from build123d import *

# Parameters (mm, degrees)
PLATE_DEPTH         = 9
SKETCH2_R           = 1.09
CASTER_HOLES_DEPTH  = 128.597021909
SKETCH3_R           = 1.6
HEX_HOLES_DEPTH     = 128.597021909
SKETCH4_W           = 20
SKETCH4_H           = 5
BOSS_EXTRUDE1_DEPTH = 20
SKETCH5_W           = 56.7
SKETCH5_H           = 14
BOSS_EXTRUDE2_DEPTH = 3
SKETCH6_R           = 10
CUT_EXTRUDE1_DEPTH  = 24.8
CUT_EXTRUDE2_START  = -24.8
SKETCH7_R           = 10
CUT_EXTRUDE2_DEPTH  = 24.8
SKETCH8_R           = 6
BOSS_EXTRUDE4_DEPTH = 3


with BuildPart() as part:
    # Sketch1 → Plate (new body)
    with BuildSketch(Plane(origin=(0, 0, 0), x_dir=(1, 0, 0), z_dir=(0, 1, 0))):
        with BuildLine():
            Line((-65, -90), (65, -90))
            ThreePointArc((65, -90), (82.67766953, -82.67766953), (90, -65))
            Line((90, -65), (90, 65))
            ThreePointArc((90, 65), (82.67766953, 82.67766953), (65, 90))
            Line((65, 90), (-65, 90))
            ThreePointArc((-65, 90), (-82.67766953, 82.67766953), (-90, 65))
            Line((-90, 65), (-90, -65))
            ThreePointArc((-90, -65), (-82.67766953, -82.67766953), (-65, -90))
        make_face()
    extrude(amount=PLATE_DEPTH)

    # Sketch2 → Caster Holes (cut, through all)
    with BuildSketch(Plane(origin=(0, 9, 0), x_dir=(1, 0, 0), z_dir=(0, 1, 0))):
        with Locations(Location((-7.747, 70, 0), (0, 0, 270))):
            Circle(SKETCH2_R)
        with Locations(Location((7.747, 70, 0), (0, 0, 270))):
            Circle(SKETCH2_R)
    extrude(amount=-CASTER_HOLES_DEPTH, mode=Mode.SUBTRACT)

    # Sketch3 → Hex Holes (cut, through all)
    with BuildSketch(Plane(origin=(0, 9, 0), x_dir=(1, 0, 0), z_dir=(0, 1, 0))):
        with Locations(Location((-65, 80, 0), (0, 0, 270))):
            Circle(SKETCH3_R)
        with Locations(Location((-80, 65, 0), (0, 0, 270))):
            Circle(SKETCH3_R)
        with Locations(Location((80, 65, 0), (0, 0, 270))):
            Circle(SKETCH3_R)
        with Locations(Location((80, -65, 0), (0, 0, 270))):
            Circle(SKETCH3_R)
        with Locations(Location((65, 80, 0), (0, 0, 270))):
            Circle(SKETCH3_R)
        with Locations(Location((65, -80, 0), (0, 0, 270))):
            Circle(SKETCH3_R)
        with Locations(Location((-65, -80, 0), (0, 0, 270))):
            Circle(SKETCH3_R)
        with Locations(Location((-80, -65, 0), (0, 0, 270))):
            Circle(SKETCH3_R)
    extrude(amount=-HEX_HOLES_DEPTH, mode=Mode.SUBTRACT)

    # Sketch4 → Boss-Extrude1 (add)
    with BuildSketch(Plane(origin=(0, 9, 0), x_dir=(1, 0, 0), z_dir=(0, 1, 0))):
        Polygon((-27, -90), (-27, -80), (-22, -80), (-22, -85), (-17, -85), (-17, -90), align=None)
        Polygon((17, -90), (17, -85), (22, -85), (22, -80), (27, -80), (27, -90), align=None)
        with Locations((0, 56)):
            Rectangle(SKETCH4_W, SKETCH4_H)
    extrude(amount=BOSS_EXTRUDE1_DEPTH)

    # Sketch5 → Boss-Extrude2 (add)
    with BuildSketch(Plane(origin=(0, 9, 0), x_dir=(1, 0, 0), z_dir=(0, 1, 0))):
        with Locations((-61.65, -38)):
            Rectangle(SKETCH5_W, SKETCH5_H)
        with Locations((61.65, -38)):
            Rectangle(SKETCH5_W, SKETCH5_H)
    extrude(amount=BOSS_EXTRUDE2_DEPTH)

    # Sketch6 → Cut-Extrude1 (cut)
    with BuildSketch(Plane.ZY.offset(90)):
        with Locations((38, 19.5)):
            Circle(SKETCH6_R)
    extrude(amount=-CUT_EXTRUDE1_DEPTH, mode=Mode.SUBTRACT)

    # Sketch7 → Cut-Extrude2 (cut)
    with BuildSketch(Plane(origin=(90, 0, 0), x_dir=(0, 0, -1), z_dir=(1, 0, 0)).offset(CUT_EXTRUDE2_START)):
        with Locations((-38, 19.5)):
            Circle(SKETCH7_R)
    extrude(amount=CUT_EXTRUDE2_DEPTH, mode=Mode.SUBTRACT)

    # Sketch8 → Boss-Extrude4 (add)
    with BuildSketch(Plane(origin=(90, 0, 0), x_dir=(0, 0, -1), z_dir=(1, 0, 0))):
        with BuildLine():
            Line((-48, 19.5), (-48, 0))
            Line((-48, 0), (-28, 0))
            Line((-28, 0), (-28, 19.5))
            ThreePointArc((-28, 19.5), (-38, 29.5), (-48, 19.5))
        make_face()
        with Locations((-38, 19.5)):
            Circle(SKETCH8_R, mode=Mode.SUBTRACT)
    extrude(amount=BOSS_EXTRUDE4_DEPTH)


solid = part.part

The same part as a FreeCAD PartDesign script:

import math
import FreeCAD as App
import Part
import Sketcher
Q = App.Units.Quantity

doc = App.newDocument("Part")
body = doc.addObject("PartDesign::Body", "Body")

# Sketch on XZ plane
sketch1 = doc.addObject("Sketcher::SketchObject", "Sketch")
body.addObject(sketch1)
sketch1.AttachmentSupport = (doc.XZ_Plane, [""])
sketch1.MapMode = "FlatFace"
sketch1.addGeometry(Part.LineSegment(App.Vector(-65, 90, 0), App.Vector(65, 90, 0)), False)
sketch1.addGeometry(Part.ArcOfCircle(Part.Circle(App.Vector(65, 65, 0), App.Vector(0, 0, 1), 25), math.radians(0), math.radians(90)), False)
sketch1.addGeometry(Part.LineSegment(App.Vector(90, 65, 0), App.Vector(90, -65, 0)), False)
sketch1.addGeometry(Part.ArcOfCircle(Part.Circle(App.Vector(65, -65, 0), App.Vector(0, 0, 1), 25), math.radians(-90), math.radians(0)), False)
sketch1.addGeometry(Part.LineSegment(App.Vector(65, -90, 0), App.Vector(-65, -90, 0)), False)
sketch1.addGeometry(Part.ArcOfCircle(Part.Circle(App.Vector(-65, -65, 0), App.Vector(0, 0, 1), 25), math.radians(180), math.radians(270)), False)
sketch1.addGeometry(Part.LineSegment(App.Vector(-90, -65, 0), App.Vector(-90, 65, 0)), False)
sketch1.addGeometry(Part.ArcOfCircle(Part.Circle(App.Vector(-65, 65, 0), App.Vector(0, 0, 1), 25), math.radians(90), math.radians(180)), False)
sketch1.addConstraint(Sketcher.Constraint("Tangent", 0, 2, 1, 2))
sketch1.addConstraint(Sketcher.Constraint("Tangent", 1, 1, 2, 1))
sketch1.addConstraint(Sketcher.Constraint("Tangent", 2, 2, 3, 2))
sketch1.addConstraint(Sketcher.Constraint("Tangent", 3, 1, 4, 1))
sketch1.addConstraint(Sketcher.Constraint("Tangent", 4, 2, 5, 2))
sketch1.addConstraint(Sketcher.Constraint("Tangent", 5, 1, 6, 1))
sketch1.addConstraint(Sketcher.Constraint("Tangent", 6, 2, 7, 2))
sketch1.addConstraint(Sketcher.Constraint("Tangent", 7, 1, 0, 1))
sketch1.addConstraint(Sketcher.Constraint("Horizontal", 0))
sketch1.addConstraint(Sketcher.Constraint("Vertical", 2))
sketch1.addConstraint(Sketcher.Constraint("Horizontal", 4))
sketch1.addConstraint(Sketcher.Constraint("Vertical", 6))
sketch1.addConstraint(Sketcher.Constraint("Equal", 1, 3))
sketch1.addConstraint(Sketcher.Constraint("Equal", 3, 5))
sketch1.addConstraint(Sketcher.Constraint("Equal", 5, 7))
sketch1.addConstraint(Sketcher.Constraint("Symmetric", 1, 3, 5, 3, -1, 1))
sketch1.addConstraint(Sketcher.Constraint("Equal", 4, 2))
sketch1.addConstraint(Sketcher.Constraint("Radius", 1, Q("25 mm")))
sketch1.addConstraint(Sketcher.Constraint("DistanceX", 0, 1, 0, 2, Q("130 mm")))
pad1 = doc.addObject("PartDesign::Pad", "Pad")
body.addObject(pad1)
pad1.Profile = sketch1
pad1.Length = 9
pad1.Reversed = True

# Sketch on XZ plane
sketch2 = doc.addObject("Sketcher::SketchObject", "Sketch001")
body.addObject(sketch2)
sketch2.AttachmentSupport = (doc.XZ_Plane, [""])
sketch2.MapMode = "FlatFace"
sketch2.AttachmentOffset = App.Placement(App.Vector(0, 0, -9), App.Rotation())
sketch2.addGeometry(Part.Circle(App.Vector(-7.747, -70, 0), App.Vector(0, 0, 1), 1.09), False)
sketch2.addGeometry(Part.Circle(App.Vector(7.747, -70, 0), App.Vector(0, 0, 1), 1.09), False)
sketch2.addConstraint(Sketcher.Constraint("Equal", 0, 1))
sketch2.addConstraint(Sketcher.Constraint("Symmetric", 0, 3, 1, 3, -2))
sketch2.addConstraint(Sketcher.Constraint("Diameter", 0, Q("2.18 mm")))
sketch2.addConstraint(Sketcher.Constraint("DistanceY", 0, 3, -1, 1, Q("70 mm")))
sketch2.addConstraint(Sketcher.Constraint("DistanceX", 0, 3, -1, 1, Q("7.747 mm")))
pocket1 = doc.addObject("PartDesign::Pocket", "Pocket")
body.addObject(pocket1)
pocket1.Profile = sketch2
pocket1.Type = "ThroughAll"
pocket1.Reversed = True

# Sketch on XZ plane
sketch3 = doc.addObject("Sketcher::SketchObject", "Sketch002")
body.addObject(sketch3)
sketch3.AttachmentSupport = (doc.XZ_Plane, [""])
sketch3.MapMode = "FlatFace"
sketch3.AttachmentOffset = App.Placement(App.Vector(0, 0, -9), App.Rotation())
sketch3.addGeometry(Part.Circle(App.Vector(-65, -80, 0), App.Vector(0, 0, 1), 1.6), False)
sketch3.addGeometry(Part.Circle(App.Vector(-80, -65, 0), App.Vector(0, 0, 1), 1.6), False)
sketch3.addGeometry(Part.Circle(App.Vector(80, -65, 0), App.Vector(0, 0, 1), 1.6), False)
sketch3.addGeometry(Part.Circle(App.Vector(80, 65, 0), App.Vector(0, 0, 1), 1.6), False)
sketch3.addGeometry(Part.Circle(App.Vector(65, -80, 0), App.Vector(0, 0, 1), 1.6), False)
sketch3.addGeometry(Part.Circle(App.Vector(65, 80, 0), App.Vector(0, 0, 1), 1.6), False)
sketch3.addGeometry(Part.Circle(App.Vector(-65, 80, 0), App.Vector(0, 0, 1), 1.6), False)
sketch3.addGeometry(Part.Circle(App.Vector(-80, 65, 0), App.Vector(0, 0, 1), 1.6), False)
sketch3.addConstraint(Sketcher.Constraint("Equal", 0, 1))
sketch3.addConstraint(Sketcher.Constraint("Equal", 1, 2))
sketch3.addConstraint(Sketcher.Constraint("Equal", 2, 3))
sketch3.addConstraint(Sketcher.Constraint("Equal", 3, 4))
sketch3.addConstraint(Sketcher.Constraint("Equal", 4, 5))
sketch3.addConstraint(Sketcher.Constraint("Equal", 5, 6))
sketch3.addConstraint(Sketcher.Constraint("Equal", 6, 7))
sketch3.addConstraint(Sketcher.Constraint("Symmetric", 1, 3, 3, 3, -1, 1))
sketch3.addConstraint(Sketcher.Constraint("Symmetric", 0, 3, 5, 3, -1, 1))
sketch3.addConstraint(Sketcher.Constraint("Symmetric", 4, 3, 6, 3, -1, 1))
sketch3.addConstraint(Sketcher.Constraint("Symmetric", 2, 3, 7, 3, -1, 1))
sketch3.addConstraint(Sketcher.Constraint("Symmetric", 1, 3, 2, 3, -2))
sketch3.addConstraint(Sketcher.Constraint("Symmetric", 0, 3, 4, 3, -2))
sketch3.addConstraint(Sketcher.Constraint("Diameter", 0, Q("3.2 mm")))
sketch3.addConstraint(Sketcher.Constraint("DistanceX", 0, 3, -1, 1, Q("65 mm")))
sketch3.addConstraint(Sketcher.Constraint("DistanceY", 0, 3, -1, 1, Q("80 mm")))
sketch3.addConstraint(Sketcher.Constraint("DistanceX", 1, 3, -1, 1, Q("80 mm")))
sketch3.addConstraint(Sketcher.Constraint("DistanceY", 1, 3, -1, 1, Q("65 mm")))
pocket2 = doc.addObject("PartDesign::Pocket", "Pocket001")
body.addObject(pocket2)
pocket2.Profile = sketch3
pocket2.Type = "ThroughAll"
pocket2.Reversed = True

# Sketch on XZ plane
sketch4 = doc.addObject("Sketcher::SketchObject", "Sketch003")
body.addObject(sketch4)
sketch4.AttachmentSupport = (doc.XZ_Plane, [""])
sketch4.MapMode = "FlatFace"
sketch4.AttachmentOffset = App.Placement(App.Vector(0, 0, -9), App.Rotation())
sketch4.addGeometry(Part.LineSegment(App.Vector(-27, 80, 0), App.Vector(-27, 90, 0)), False)
sketch4.addGeometry(Part.LineSegment(App.Vector(-27, 90, 0), App.Vector(-17, 90, 0)), False)
sketch4.addGeometry(Part.LineSegment(App.Vector(-17, 90, 0), App.Vector(-17, 85, 0)), False)
sketch4.addGeometry(Part.LineSegment(App.Vector(-17, 85, 0), App.Vector(-22, 85, 0)), False)
sketch4.addGeometry(Part.LineSegment(App.Vector(-22, 85, 0), App.Vector(-22, 80, 0)), False)
sketch4.addGeometry(Part.LineSegment(App.Vector(-22, 80, 0), App.Vector(-27, 80, 0)), False)
sketch4.addGeometry(Part.LineSegment(App.Vector(17, 85, 0), App.Vector(17, 90, 0)), False)
sketch4.addGeometry(Part.LineSegment(App.Vector(17, 90, 0), App.Vector(27, 90, 0)), False)
sketch4.addGeometry(Part.LineSegment(App.Vector(27, 90, 0), App.Vector(27, 80, 0)), False)
sketch4.addGeometry(Part.LineSegment(App.Vector(27, 80, 0), App.Vector(22, 80, 0)), False)
sketch4.addGeometry(Part.LineSegment(App.Vector(22, 80, 0), App.Vector(22, 85, 0)), False)
sketch4.addGeometry(Part.LineSegment(App.Vector(22, 85, 0), App.Vector(17, 85, 0)), False)
sketch4.addGeometry(Part.LineSegment(App.Vector(-10, -58.5, 0), App.Vector(-10, -53.5, 0)), False)
sketch4.addGeometry(Part.LineSegment(App.Vector(-10, -53.5, 0), App.Vector(10, -53.5, 0)), False)
sketch4.addGeometry(Part.LineSegment(App.Vector(10, -53.5, 0), App.Vector(10, -58.5, 0)), False)
sketch4.addGeometry(Part.LineSegment(App.Vector(10, -58.5, 0), App.Vector(-10, -58.5, 0)), False)
sketch4.addConstraint(Sketcher.Constraint("Coincident", 0, 2, 1, 1))
sketch4.addConstraint(Sketcher.Constraint("Coincident", 1, 2, 2, 1))
sketch4.addConstraint(Sketcher.Constraint("Coincident", 2, 2, 3, 1))
sketch4.addConstraint(Sketcher.Constraint("Coincident", 3, 2, 4, 1))
sketch4.addConstraint(Sketcher.Constraint("Coincident", 4, 2, 5, 1))
sketch4.addConstraint(Sketcher.Constraint("Coincident", 5, 2, 0, 1))
sketch4.addConstraint(Sketcher.Constraint("Coincident", 6, 2, 7, 1))
sketch4.addConstraint(Sketcher.Constraint("Coincident", 7, 2, 8, 1))
sketch4.addConstraint(Sketcher.Constraint("Coincident", 8, 2, 9, 1))
sketch4.addConstraint(Sketcher.Constraint("Coincident", 9, 2, 10, 1))
sketch4.addConstraint(Sketcher.Constraint("Coincident", 10, 2, 11, 1))
sketch4.addConstraint(Sketcher.Constraint("Coincident", 11, 2, 6, 1))
sketch4.addConstraint(Sketcher.Constraint("Coincident", 12, 2, 13, 1))
sketch4.addConstraint(Sketcher.Constraint("Coincident", 13, 2, 14, 1))
sketch4.addConstraint(Sketcher.Constraint("Coincident", 14, 2, 15, 1))
sketch4.addConstraint(Sketcher.Constraint("Coincident", 15, 2, 12, 1))
sketch4.addConstraint(Sketcher.Constraint("Vertical", 0))
sketch4.addConstraint(Sketcher.Constraint("Horizontal", 1))
sketch4.addConstraint(Sketcher.Constraint("Vertical", 2))
sketch4.addConstraint(Sketcher.Constraint("Horizontal", 3))
sketch4.addConstraint(Sketcher.Constraint("Vertical", 4))
sketch4.addConstraint(Sketcher.Constraint("Horizontal", 5))
sketch4.addConstraint(Sketcher.Constraint("Vertical", 6))
sketch4.addConstraint(Sketcher.Constraint("Horizontal", 7))
sketch4.addConstraint(Sketcher.Constraint("Vertical", 8))
sketch4.addConstraint(Sketcher.Constraint("Horizontal", 9))
sketch4.addConstraint(Sketcher.Constraint("Vertical", 10))
sketch4.addConstraint(Sketcher.Constraint("Horizontal", 11))
sketch4.addConstraint(Sketcher.Constraint("Vertical", 12))
sketch4.addConstraint(Sketcher.Constraint("Horizontal", 13))
sketch4.addConstraint(Sketcher.Constraint("Vertical", 14))
sketch4.addConstraint(Sketcher.Constraint("Horizontal", 15))
sketch4.addConstraint(Sketcher.Constraint("Symmetric", 1, 2, 6, 2, -2))
sketch4.addConstraint(Sketcher.Constraint("Symmetric", 5, 2, 8, 2, -2))
sketch4.addConstraint(Sketcher.Constraint("Symmetric", 3, 2, 10, 2, -2))
sketch4.addConstraint(Sketcher.Constraint("Equal", 3, 5))
sketch4.addConstraint(Sketcher.Constraint("Equal", 7, 0))
sketch4.addConstraint(Sketcher.Constraint("Equal", 11, 2))
sketch4.addConstraint(Sketcher.Constraint("Equal", 10, 12))
sketch4.addConstraint(Sketcher.Constraint("DistanceX", 1, 1, 1, 2, Q("10 mm")))
sketch4.addConstraint(Sketcher.Constraint("DistanceX", 13, 1, 13, 2, Q("20 mm")))
sketch4.addConstraint(Sketcher.Constraint("DistanceX", 0, 2, -1, 1, Q("27 mm")))
sketch4.addConstraint(Sketcher.Constraint("DistanceY", -1, 1, 0, 2, Q("90 mm")))
sketch4.addConstraint(Sketcher.Constraint("DistanceX", 12, 2, -1, 1, Q("10 mm")))
sketch4.addConstraint(Sketcher.Constraint("DistanceY", 12, 2, -1, 1, Q("53.5 mm")))
pad2 = doc.addObject("PartDesign::Pad", "Pad001")
body.addObject(pad2)
pad2.Profile = sketch4
pad2.Length = 20
pad2.Reversed = True

# Sketch on XZ plane
sketch5 = doc.addObject("Sketcher::SketchObject", "Sketch004")
body.addObject(sketch5)
sketch5.AttachmentSupport = (doc.XZ_Plane, [""])
sketch5.MapMode = "FlatFace"
sketch5.AttachmentOffset = App.Placement(App.Vector(0, 0, -9), App.Rotation())
sketch5.addGeometry(Part.LineSegment(App.Vector(-90, 31, 0), App.Vector(-90, 45, 0)), False)
sketch5.addGeometry(Part.LineSegment(App.Vector(-90, 45, 0), App.Vector(-33.3, 45, 0)), False)
sketch5.addGeometry(Part.LineSegment(App.Vector(-33.3, 45, 0), App.Vector(-33.3, 31, 0)), False)
sketch5.addGeometry(Part.LineSegment(App.Vector(-33.3, 31, 0), App.Vector(-90, 31, 0)), False)
sketch5.addGeometry(Part.LineSegment(App.Vector(33.3, 31, 0), App.Vector(33.3, 45, 0)), False)
sketch5.addGeometry(Part.LineSegment(App.Vector(33.3, 45, 0), App.Vector(90, 45, 0)), False)
sketch5.addGeometry(Part.LineSegment(App.Vector(90, 45, 0), App.Vector(90, 31, 0)), False)
sketch5.addGeometry(Part.LineSegment(App.Vector(90, 31, 0), App.Vector(33.3, 31, 0)), False)
sketch5.addConstraint(Sketcher.Constraint("Coincident", 0, 2, 1, 1))
sketch5.addConstraint(Sketcher.Constraint("Coincident", 1, 2, 2, 1))
sketch5.addConstraint(Sketcher.Constraint("Coincident", 2, 2, 3, 1))
sketch5.addConstraint(Sketcher.Constraint("Coincident", 3, 2, 0, 1))
sketch5.addConstraint(Sketcher.Constraint("Coincident", 4, 2, 5, 1))
sketch5.addConstraint(Sketcher.Constraint("Coincident", 5, 2, 6, 1))
sketch5.addConstraint(Sketcher.Constraint("Coincident", 6, 2, 7, 1))
sketch5.addConstraint(Sketcher.Constraint("Coincident", 7, 2, 4, 1))
sketch5.addConstraint(Sketcher.Constraint("Vertical", 0))
sketch5.addConstraint(Sketcher.Constraint("Horizontal", 1))
sketch5.addConstraint(Sketcher.Constraint("Vertical", 2))
sketch5.addConstraint(Sketcher.Constraint("Horizontal", 3))
sketch5.addConstraint(Sketcher.Constraint("Vertical", 4))
sketch5.addConstraint(Sketcher.Constraint("Horizontal", 5))
sketch5.addConstraint(Sketcher.Constraint("Vertical", 6))
sketch5.addConstraint(Sketcher.Constraint("Horizontal", 7))
sketch5.addConstraint(Sketcher.Constraint("Symmetric", 1, 2, 4, 2, -2))
sketch5.addConstraint(Sketcher.Constraint("Symmetric", 3, 2, 6, 2, -2))
sketch5.addConstraint(Sketcher.Constraint("DistanceY", 0, 1, 0, 2, Q("14 mm")))
sketch5.addConstraint(Sketcher.Constraint("DistanceX", 1, 1, 1, 2, Q("56.7 mm")))
sketch5.addConstraint(Sketcher.Constraint("DistanceX", 0, 2, -1, 1, Q("90 mm")))
sketch5.addConstraint(Sketcher.Constraint("DistanceY", -1, 1, 0, 2, Q("45 mm")))
pad3 = doc.addObject("PartDesign::Pad", "Pad002")
body.addObject(pad3)
pad3.Profile = sketch5
pad3.Length = 3
pad3.Reversed = True

# Sketch on YZ plane
sketch6 = doc.addObject("Sketcher::SketchObject", "Sketch005")
body.addObject(sketch6)
sketch6.AttachmentSupport = (doc.YZ_Plane, [""])
sketch6.MapMode = "FlatFace"
sketch6.AttachmentOffset = App.Placement(App.Vector(0, 0, -90), App.Rotation())
sketch6.addGeometry(Part.Circle(App.Vector(19.5, 38, 0), App.Vector(0, 0, 1), 10), False)
sketch6.addConstraint(Sketcher.Constraint("Diameter", 0, Q("20 mm")))
sketch6.addConstraint(Sketcher.Constraint("DistanceY", -1, 1, 0, 3, Q("38 mm")))
sketch6.addConstraint(Sketcher.Constraint("DistanceX", -1, 1, 0, 3, Q("19.5 mm")))
pocket3 = doc.addObject("PartDesign::Pocket", "Pocket002")
body.addObject(pocket3)
pocket3.Profile = sketch6
pocket3.Length = 24.8
pocket3.Reversed = True

# Sketch on YZ plane
sketch7 = doc.addObject("Sketcher::SketchObject", "Sketch006")
body.addObject(sketch7)
sketch7.AttachmentSupport = (doc.YZ_Plane, [""])
sketch7.MapMode = "FlatFace"
sketch7.AttachmentOffset = App.Placement(App.Vector(0, 0, 65.2), App.Rotation())
sketch7.addGeometry(Part.Circle(App.Vector(19.5, 38, 0), App.Vector(0, 0, 1), 10), False)
sketch7.addConstraint(Sketcher.Constraint("Diameter", 0, Q("20 mm")))
sketch7.addConstraint(Sketcher.Constraint("DistanceY", -1, 1, 0, 3, Q("38 mm")))
sketch7.addConstraint(Sketcher.Constraint("DistanceX", -1, 1, 0, 3, Q("19.5 mm")))
pocket4 = doc.addObject("PartDesign::Pocket", "Pocket003")
body.addObject(pocket4)
pocket4.Profile = sketch7
pocket4.Length = 24.8
pocket4.Reversed = True

# Sketch on YZ plane
sketch8 = doc.addObject("Sketcher::SketchObject", "Sketch007")
body.addObject(sketch8)
sketch8.AttachmentSupport = (doc.YZ_Plane, [""])
sketch8.MapMode = "FlatFace"
sketch8.AttachmentOffset = App.Placement(App.Vector(0, 0, 90), App.Rotation())
sketch8.addGeometry(Part.LineSegment(App.Vector(19.5, 48, 0), App.Vector(0, 48, 0)), False)
sketch8.addGeometry(Part.LineSegment(App.Vector(0, 48, 0), App.Vector(0, 28, 0)), False)
sketch8.addGeometry(Part.LineSegment(App.Vector(0, 28, 0), App.Vector(19.5, 28, 0)), False)
sketch8.addGeometry(Part.ArcOfCircle(Part.Circle(App.Vector(19.5, 38, 0), App.Vector(0, 0, 1), 10), math.radians(-90), math.radians(90)), False)
sketch8.addGeometry(Part.Circle(App.Vector(19.5, 38, 0), App.Vector(0, 0, 1), 6), False)
sketch8.addConstraint(Sketcher.Constraint("Coincident", 0, 2, 1, 1))
sketch8.addConstraint(Sketcher.Constraint("Coincident", 1, 2, 2, 1))
sketch8.addConstraint(Sketcher.Constraint("Tangent", 2, 2, 3, 1))
sketch8.addConstraint(Sketcher.Constraint("Tangent", 3, 2, 0, 1))
sketch8.addConstraint(Sketcher.Constraint("Horizontal", 0))
sketch8.addConstraint(Sketcher.Constraint("Vertical", 1))
sketch8.addConstraint(Sketcher.Constraint("Horizontal", 2))
sketch8.addConstraint(Sketcher.Constraint("Coincident", 4, 3, 3, 3))
sketch8.addConstraint(Sketcher.Constraint("PointOnObject", 0, 2, -2))
sketch8.addConstraint(Sketcher.Constraint("Diameter", 4, Q("12 mm")))
sketch8.addConstraint(Sketcher.Constraint("Radius", 3, Q("10 mm")))
sketch8.addConstraint(Sketcher.Constraint("DistanceX", 0, 2, 0, 1, Q("19.5 mm")))
sketch8.addConstraint(Sketcher.Constraint("DistanceY", -1, 1, 3, 3, Q("38 mm")))
pad4 = doc.addObject("PartDesign::Pad", "Pad003")
body.addObject(pad4)
pad4.Profile = sketch8
pad4.Length = 3

doc.recompute()
